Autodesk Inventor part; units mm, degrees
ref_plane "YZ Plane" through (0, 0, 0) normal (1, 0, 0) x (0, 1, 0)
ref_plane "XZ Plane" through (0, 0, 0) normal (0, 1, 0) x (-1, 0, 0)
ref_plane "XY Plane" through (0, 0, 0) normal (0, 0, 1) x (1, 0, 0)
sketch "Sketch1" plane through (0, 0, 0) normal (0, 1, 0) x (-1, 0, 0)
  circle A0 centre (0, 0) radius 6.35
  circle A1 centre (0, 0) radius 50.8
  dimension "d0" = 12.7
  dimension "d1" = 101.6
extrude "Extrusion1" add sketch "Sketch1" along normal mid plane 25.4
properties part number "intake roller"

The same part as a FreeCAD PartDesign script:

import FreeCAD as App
import Part
import Sketcher
Q = App.Units.Quantity

doc = App.newDocument("Part")
body = doc.addObject("PartDesign::Body", "Body")

# Sketch on XZ plane
sketch1 = body.newObject("Sketcher::SketchObject", "Sketch")
sketch1.AttachmentSupport = (doc.getObject("XZ_Plane"), [""])
sketch1.MapMode = "FlatFace"
sketch1.addGeometry(Part.Circle(App.Vector(0, 0, 0), App.Vector(0, 0, 1), 50.8), False)
sketch1.addGeometry(Part.Circle(App.Vector(0, 0, 0), App.Vector(0, 0, 1), 6.35), False)
sketch1.addConstraint(Sketcher.Constraint("Coincident", 0, 3, -1, 1))
sketch1.addConstraint(Sketcher.Constraint("Coincident", 1, 3, -1, 1))
sketch1.addConstraint(Sketcher.Constraint("Diameter", 0, Q("4 in")))
sketch1.addConstraint(Sketcher.Constraint("Diameter", 1, Q("0.5 in")))
pad1 = body.newObject("PartDesign::Pad", "Pad")
pad1.Profile = sketch1
pad1.Length = Q("1 in")
pad1.Midplane = True

doc.recompute()
